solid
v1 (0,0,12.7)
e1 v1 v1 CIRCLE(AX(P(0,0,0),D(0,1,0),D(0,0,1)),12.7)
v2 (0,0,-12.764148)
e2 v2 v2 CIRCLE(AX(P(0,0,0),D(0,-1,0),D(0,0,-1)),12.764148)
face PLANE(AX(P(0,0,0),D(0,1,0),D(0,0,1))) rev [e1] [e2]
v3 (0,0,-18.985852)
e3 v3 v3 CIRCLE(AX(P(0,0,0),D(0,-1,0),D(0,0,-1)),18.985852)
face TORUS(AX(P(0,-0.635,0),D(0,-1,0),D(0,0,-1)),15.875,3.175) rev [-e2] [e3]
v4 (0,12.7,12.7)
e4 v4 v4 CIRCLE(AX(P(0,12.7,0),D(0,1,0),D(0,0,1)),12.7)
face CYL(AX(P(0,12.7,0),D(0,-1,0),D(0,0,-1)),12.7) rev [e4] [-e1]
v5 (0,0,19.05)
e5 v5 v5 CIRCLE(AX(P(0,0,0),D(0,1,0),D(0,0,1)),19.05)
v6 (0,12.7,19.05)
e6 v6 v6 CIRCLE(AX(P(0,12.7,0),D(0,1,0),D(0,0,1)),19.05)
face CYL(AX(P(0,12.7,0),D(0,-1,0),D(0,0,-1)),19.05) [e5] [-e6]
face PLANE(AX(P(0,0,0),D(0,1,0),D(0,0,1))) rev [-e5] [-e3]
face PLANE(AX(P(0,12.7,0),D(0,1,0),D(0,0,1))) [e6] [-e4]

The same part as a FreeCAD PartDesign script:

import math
import FreeCAD as App
import Part
import Sketcher

V = App.Vector
Q = App.Units.Quantity

doc = App.newDocument("Part")
params = doc.addObject("Spreadsheet::Sheet", "Params")
for row, (alias, value) in enumerate([
    ("sketch1_diameter", "1 in"),
    ("sketch1_diameter2", "1.5 in"),
    ("pad1_length", "0.5 in"),
    ("sketch2_radius", "0.125 in"),
    ("groove_angle", "360 deg"),
], start=1):
    params.set(f"A{row}", alias)
    params.set(f"B{row}", "=" + value)
    params.setAlias(f"B{row}", alias)

body = doc.addObject("PartDesign::Body", "Body")

# Sketch on XZ plane
sketch1 = body.newObject("Sketcher::SketchObject", "Sketch")
sketch1.AttachmentSupport = (doc.getObject("XZ_Plane"), [""])
sketch1.MapMode = "FlatFace"
sketch1.addGeometry(Part.Circle(V(0, 0, 0), V(0, 0, 1), 19), False)
sketch1.addGeometry(Part.Circle(V(0, 0, 0), V(0, 0, 1), 13), False)
sketch1.addConstraint(Sketcher.Constraint("Coincident", 0, 3, -1, 1))
sketch1.addConstraint(Sketcher.Constraint("Coincident", 1, 3, -1, 1))
sketch1.addConstraint(Sketcher.Constraint("Diameter", 1, Q("1 in")))
sketch1.addConstraint(Sketcher.Constraint("Diameter", 0, Q("1.5 in")))
sketch1.setExpression("Constraints[2]", "Params.sketch1_diameter")
sketch1.setExpression("Constraints[3]", "Params.sketch1_diameter2")
pad1 = body.newObject("PartDesign::Pad", "Pad")
pad1.Profile = sketch1
pad1.setExpression("Length", "Params.pad1_length")
pad1.Reversed = True

# Sketch on YZ plane
sketch2 = body.newObject("Sketcher::SketchObject", "Sketch001")
sketch2.AttachmentSupport = (doc.getObject("YZ_Plane"), [""])
sketch2.MapMode = "FlatFace"
sketch2.addGeometry(Part.LineSegment(V(0, 19, 0), V(0, 12.8, 0)), False)
sketch2.addGeometry(Part.ArcOfCircle(Part.Circle(V(-0.6, 15.9, 0), V(0, 0, 1), 3.2), math.radians(-78), math.radians(78)), False)
sketch2.addConstraint(Sketcher.Constraint("Coincident", 0, 1, 1, 2))
sketch2.addConstraint(Sketcher.Constraint("Coincident", 1, 1, 0, 2))
sketch2.addConstraint(Sketcher.Constraint("Vertical", 0))
sketch2.addConstraint(Sketcher.Constraint("PointOnObject", 0, 1, -2))
sketch2.addConstraint(Sketcher.Constraint("Radius", 1, Q("0.125 in")))
sketch2.addConstraint(Sketcher.Constraint("DistanceX", 1, 3, -1, 1, Q("0.025 in")))
sketch2.addConstraint(Sketcher.Constraint("DistanceY", -1, 1, 1, 3, Q("0.625 in")))
sketch2.setExpression("Constraints[4]", "Params.sketch2_radius")
groove = body.newObject("PartDesign::Groove", "Groove")
groove.Profile = sketch2
groove.ReferenceAxis = (sketch2, ["H_Axis"])
groove.setExpression("Angle", "Params.groove_angle")

doc.recompute()
